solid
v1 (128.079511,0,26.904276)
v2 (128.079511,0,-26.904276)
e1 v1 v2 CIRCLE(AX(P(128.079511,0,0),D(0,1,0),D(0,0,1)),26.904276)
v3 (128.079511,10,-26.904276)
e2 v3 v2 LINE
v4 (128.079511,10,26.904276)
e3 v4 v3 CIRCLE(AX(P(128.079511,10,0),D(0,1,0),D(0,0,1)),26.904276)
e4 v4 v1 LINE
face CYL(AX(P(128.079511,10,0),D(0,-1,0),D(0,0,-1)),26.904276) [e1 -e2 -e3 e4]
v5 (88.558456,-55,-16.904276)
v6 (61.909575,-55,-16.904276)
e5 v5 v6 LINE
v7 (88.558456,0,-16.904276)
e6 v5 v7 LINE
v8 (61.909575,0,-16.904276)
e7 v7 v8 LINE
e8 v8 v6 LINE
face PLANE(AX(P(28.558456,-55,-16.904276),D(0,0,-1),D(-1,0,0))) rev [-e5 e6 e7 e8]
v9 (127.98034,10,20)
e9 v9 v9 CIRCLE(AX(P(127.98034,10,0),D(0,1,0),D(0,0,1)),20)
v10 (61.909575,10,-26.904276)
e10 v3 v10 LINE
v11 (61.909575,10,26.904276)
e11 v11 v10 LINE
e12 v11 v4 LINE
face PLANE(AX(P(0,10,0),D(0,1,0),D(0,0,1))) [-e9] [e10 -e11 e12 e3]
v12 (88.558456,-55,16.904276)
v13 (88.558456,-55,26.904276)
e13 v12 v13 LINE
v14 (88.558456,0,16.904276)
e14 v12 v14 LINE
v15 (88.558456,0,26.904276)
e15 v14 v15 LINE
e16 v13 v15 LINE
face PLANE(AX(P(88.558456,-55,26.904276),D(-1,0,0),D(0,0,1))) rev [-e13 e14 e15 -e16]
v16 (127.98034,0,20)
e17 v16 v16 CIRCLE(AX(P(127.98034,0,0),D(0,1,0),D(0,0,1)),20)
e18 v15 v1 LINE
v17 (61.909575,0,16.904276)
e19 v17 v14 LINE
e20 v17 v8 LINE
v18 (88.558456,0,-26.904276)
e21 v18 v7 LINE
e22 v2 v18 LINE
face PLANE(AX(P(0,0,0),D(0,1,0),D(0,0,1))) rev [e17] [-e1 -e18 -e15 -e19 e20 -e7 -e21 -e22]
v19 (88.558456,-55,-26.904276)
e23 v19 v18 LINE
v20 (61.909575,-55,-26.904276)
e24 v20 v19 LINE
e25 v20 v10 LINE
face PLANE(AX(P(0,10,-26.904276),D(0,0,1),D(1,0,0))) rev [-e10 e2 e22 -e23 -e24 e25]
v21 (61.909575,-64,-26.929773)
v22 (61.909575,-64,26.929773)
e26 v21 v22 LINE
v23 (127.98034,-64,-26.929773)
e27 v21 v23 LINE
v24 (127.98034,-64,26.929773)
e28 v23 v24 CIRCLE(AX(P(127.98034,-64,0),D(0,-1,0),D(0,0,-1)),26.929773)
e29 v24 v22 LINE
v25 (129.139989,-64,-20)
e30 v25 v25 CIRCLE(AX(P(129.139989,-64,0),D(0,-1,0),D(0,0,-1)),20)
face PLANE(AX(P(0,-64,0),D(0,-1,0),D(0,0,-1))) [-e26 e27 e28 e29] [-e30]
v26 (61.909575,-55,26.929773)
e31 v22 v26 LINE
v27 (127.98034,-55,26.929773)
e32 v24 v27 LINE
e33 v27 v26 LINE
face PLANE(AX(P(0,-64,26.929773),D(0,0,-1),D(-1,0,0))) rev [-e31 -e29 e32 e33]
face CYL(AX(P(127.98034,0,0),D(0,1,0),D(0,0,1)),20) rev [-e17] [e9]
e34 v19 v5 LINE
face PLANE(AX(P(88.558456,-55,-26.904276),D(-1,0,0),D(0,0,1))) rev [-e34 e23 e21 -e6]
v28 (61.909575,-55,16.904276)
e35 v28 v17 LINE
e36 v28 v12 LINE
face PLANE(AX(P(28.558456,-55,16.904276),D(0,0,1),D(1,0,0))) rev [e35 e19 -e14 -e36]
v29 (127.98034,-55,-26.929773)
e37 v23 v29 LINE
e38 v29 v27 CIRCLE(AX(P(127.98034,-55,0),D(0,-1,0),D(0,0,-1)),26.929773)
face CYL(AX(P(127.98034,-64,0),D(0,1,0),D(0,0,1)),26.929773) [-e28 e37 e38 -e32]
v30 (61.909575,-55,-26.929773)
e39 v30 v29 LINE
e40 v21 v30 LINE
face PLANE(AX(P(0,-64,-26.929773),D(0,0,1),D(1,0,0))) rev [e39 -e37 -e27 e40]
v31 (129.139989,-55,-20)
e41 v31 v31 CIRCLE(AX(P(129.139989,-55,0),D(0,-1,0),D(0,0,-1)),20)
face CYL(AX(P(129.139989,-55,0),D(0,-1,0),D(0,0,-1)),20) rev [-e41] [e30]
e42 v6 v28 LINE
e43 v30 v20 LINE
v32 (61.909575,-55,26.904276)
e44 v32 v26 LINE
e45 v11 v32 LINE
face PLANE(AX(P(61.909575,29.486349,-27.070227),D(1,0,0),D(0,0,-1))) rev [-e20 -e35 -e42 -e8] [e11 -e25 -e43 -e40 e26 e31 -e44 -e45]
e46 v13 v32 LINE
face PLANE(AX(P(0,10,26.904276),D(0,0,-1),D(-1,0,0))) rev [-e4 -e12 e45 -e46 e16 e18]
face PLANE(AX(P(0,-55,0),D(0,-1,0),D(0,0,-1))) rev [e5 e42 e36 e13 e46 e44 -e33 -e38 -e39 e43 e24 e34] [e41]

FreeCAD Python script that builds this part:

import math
import FreeCAD as App
import Part
import Sketcher

doc = App.newDocument("Part")
params = doc.addObject("Spreadsheet::Sheet", "Params")
for row, (alias, value) in enumerate([
    ("pad1_length", "10 mm"),
    ("sketch2_diameter", "40 mm"),
    ("pocket1_length", "10 mm"),
    ("sketch3_diameter", "40 mm"),
    ("pocket2_length", "10 mm"),
    ("sketch4_width", "60 mm"),
    ("sketch4_height", "10 mm"),
    ("pad2_length", "55 mm"),
    ("pad3_length", "9 mm"),
    ("sketch6_diameter", "40 mm"),
    ("pocket3_length", "9 mm"),
    ("sketch7_diameter", "40 mm"),
    ("pocket4_length", "10 mm"),
    ("pocket5_length", "54 mm"),
    ("pocket6_length", "76 mm"),
], start=1):
    params.set(f"A{row}", alias)
    params.set(f"B{row}", "=" + value)
    params.setAlias(f"B{row}", alias)

body = doc.addObject("PartDesign::Body", "Body")

# Sketch on XZ plane
sketch1 = doc.addObject("Sketcher::SketchObject", "Sketch")
body.addObject(sketch1)
sketch1.AttachmentSupport = (doc.XZ_Plane, [""])
sketch1.MapMode = "FlatFace"
sketch1.addGeometry(Part.LineSegment(App.Vector(128.079511, -26.904276, 0), App.Vector(0, -26.904276, 0)), False)
sketch1.addGeometry(Part.ArcOfCircle(Part.Circle(App.Vector(0, 0, 0), App.Vector(0, 0, 1), 26.904276), math.radians(90), math.radians(270)), False)
sketch1.addGeometry(Part.LineSegment(App.Vector(0, 26.904276, 0), App.Vector(128.079511, 26.904276, 0)), False)
sketch1.addGeometry(Part.ArcOfCircle(Part.Circle(App.Vector(128.079511, 0, 0), App.Vector(0, 0, 1), 26.904276), math.radians(-90), math.radians(90)), False)
sketch1.addConstraint(Sketcher.Constraint("Tangent", 0, 2, 1, 2))
sketch1.addConstraint(Sketcher.Constraint("Tangent", 1, 1, 2, 1))
sketch1.addConstraint(Sketcher.Constraint("Tangent", 2, 2, 3, 2))
sketch1.addConstraint(Sketcher.Constraint("Tangent", 3, 1, 0, 1))
sketch1.addConstraint(Sketcher.Constraint("Horizontal", 0))
sketch1.addConstraint(Sketcher.Constraint("Horizontal", 2))
sketch1.addConstraint(Sketcher.Constraint("Coincident", 1, 3, -1, 1))
sketch1.addConstraint(Sketcher.Constraint("Radius", 1, 26.904276))
sketch1.addConstraint(Sketcher.Constraint("DistanceX", 0, 2, 0, 1, 128.079511))
pad1 = doc.addObject("PartDesign::Pad", "Pad")
body.addObject(pad1)
pad1.Profile = sketch1
pad1.setExpression("Length", "Params.pad1_length")
pad1.Reversed = True

# Sketch on XZ plane
sketch2 = doc.addObject("Sketcher::SketchObject", "Sketch001")
body.addObject(sketch2)
sketch2.AttachmentSupport = (doc.XZ_Plane, [""])
sketch2.MapMode = "FlatFace"
sketch2.addGeometry(Part.Circle(App.Vector(0, 0, 0), App.Vector(0, 0, 1), 20), False)
sketch2.addConstraint(Sketcher.Constraint("Coincident", 0, 3, -1, 1))
sketch2.addConstraint(Sketcher.Constraint("Diameter", 0, 40.0))
sketch2.setExpression("Constraints[1]", "Params.sketch2_diameter")
pocket1 = doc.addObject("PartDesign::Pocket", "Pocket")
body.addObject(pocket1)
pocket1.Profile = sketch2
pocket1.setExpression("Length", "Params.pocket1_length")

# Sketch on XZ plane
sketch3 = doc.addObject("Sketcher::SketchObject", "Sketch002")
body.addObject(sketch3)
sketch3.AttachmentSupport = (doc.XZ_Plane, [""])
sketch3.MapMode = "FlatFace"
sketch3.AttachmentOffset = App.Placement(App.Vector(0, 0, -10), App.Rotation())
sketch3.addGeometry(Part.Circle(App.Vector(127.98034, 0, 0), App.Vector(0, 0, 1), 20), False)
sketch3.addConstraint(Sketcher.Constraint("PointOnObject", 0, 3, -1))
sketch3.addConstraint(Sketcher.Constraint("Diameter", 0, 40.0))
sketch3.addConstraint(Sketcher.Constraint("DistanceX", -1, 1, 0, 3, 127.98034))
sketch3.setExpression("Constraints[1]", "Params.sketch3_diameter")
pocket2 = doc.addObject("PartDesign::Pocket", "Pocket001")
body.addObject(pocket2)
pocket2.Profile = sketch3
pocket2.setExpression("Length", "Params.pocket2_length")
pocket2.Reversed = True

# Sketch on XZ plane
sketch4 = doc.addObject("Sketcher::SketchObject", "Sketch003")
body.addObject(sketch4)
sketch4.AttachmentSupport = (doc.XZ_Plane, [""])
sketch4.MapMode = "FlatFace"
sketch4.addGeometry(Part.LineSegment(App.Vector(88.558456, 16.904276, 0), App.Vector(88.558456, 26.904276, 0)), False)
sketch4.addGeometry(Part.LineSegment(App.Vector(88.558456, 26.904276, 0), App.Vector(28.558456, 26.904276, 0)), False)
sketch4.addGeometry(Part.LineSegment(App.Vector(28.558456, 26.904276, 0), App.Vector(28.558456, 16.904276, 0)), False)
sketch4.addGeometry(Part.LineSegment(App.Vector(28.558456, 16.904276, 0), App.Vector(88.558456, 16.904276, 0)), False)
sketch4.addGeometry(Part.LineSegment(App.Vector(88.558456, -26.904276, 0), App.Vector(88.558456, -16.904276, 0)), False)
sketch4.addGeometry(Part.LineSegment(App.Vector(88.558456, -16.904276, 0), App.Vector(28.558456, -16.904276, 0)), False)
sketch4.addGeometry(Part.LineSegment(App.Vector(28.558456, -16.904276, 0), App.Vector(28.558456, -26.904276, 0)), False)
sketch4.addGeometry(Part.LineSegment(App.Vector(28.558456, -26.904276, 0), App.Vector(88.558456, -26.904276, 0)), False)
sketch4.addConstraint(Sketcher.Constraint("Coincident", 0, 2, 1, 1))
sketch4.addConstraint(Sketcher.Constraint("Coincident", 1, 2, 2, 1))
sketch4.addConstraint(Sketcher.Constraint("Coincident", 2, 2, 3, 1))
sketch4.addConstraint(Sketcher.Constraint("Coincident", 3, 2, 0, 1))
sketch4.addConstraint(Sketcher.Constraint("Coincident", 4, 2, 5, 1))
sketch4.addConstraint(Sketcher.Constraint("Coincident", 5, 2, 6, 1))
sketch4.addConstraint(Sketcher.Constraint("Coincident", 6, 2, 7, 1))
sketch4.addConstraint(Sketcher.Constraint("Coincident", 7, 2, 4, 1))
sketch4.addConstraint(Sketcher.Constraint("Vertical", 0))
sketch4.addConstraint(Sketcher.Constraint("Horizontal", 1))
sketch4.addConstraint(Sketcher.Constraint("Vertical", 2))
sketch4.addConstraint(Sketcher.Constraint("Horizontal", 3))
sketch4.addConstraint(Sketcher.Constraint("Vertical", 4))
sketch4.addConstraint(Sketcher.Constraint("Horizontal", 5))
sketch4.addConstraint(Sketcher.Constraint("Vertical", 6))
sketch4.addConstraint(Sketcher.Constraint("Horizontal", 7))
sketch4.addConstraint(Sketcher.Constraint("Symmetric", 3, 2, 4, 2, -1))
sketch4.addConstraint(Sketcher.Constraint("Symmetric", 1, 2, 6, 2, -1))
sketch4.addConstraint(Sketcher.Constraint("DistanceX", 1, 2, 1, 1, 60.0))
sketch4.addConstraint(Sketcher.Constraint("DistanceY", 0, 1, 0, 2, 10.0))
sketch4.addConstraint(Sketcher.Constraint("DistanceX", -1, 1, 0, 2, 88.558456))
sketch4.addConstraint(Sketcher.Constraint("DistanceY", -1, 1, 0, 2, 26.904276))
sketch4.setExpression("Constraints[18]", "Params.sketch4_width")
sketch4.setExpression("Constraints[19]", "Params.sketch4_height")
pad2 = doc.addObject("PartDesign::Pad", "Pad001")
body.addObject(pad2)
pad2.Profile = sketch4
pad2.setExpression("Length", "Params.pad2_length")

# Sketch on XZ plane
sketch5 = doc.addObject("Sketcher::SketchObject", "Sketch004")
body.addObject(sketch5)
sketch5.AttachmentSupport = (doc.XZ_Plane, [""])
sketch5.MapMode = "FlatFace"
sketch5.AttachmentOffset = App.Placement(App.Vector(0, 0, 55), App.Rotation())
sketch5.addGeometry(Part.LineSegment(App.Vector(127.98034, 26.929773, 0), App.Vector(0, 26.929773, 0)), False)
sketch5.addGeometry(Part.ArcOfCircle(Part.Circle(App.Vector(0, 0, 0), App.Vector(0, 0, 1), 26.929773), math.radians(90), math.radians(270)), False)
sketch5.addGeometry(Part.LineSegment(App.Vector(0, -26.929773, 0), App.Vector(127.98034, -26.929773, 0)), False)
sketch5.addGeometry(Part.ArcOfCircle(Part.Circle(App.Vector(127.98034, 0, 0), App.Vector(0, 0, 1), 26.929773), math.radians(-90), math.radians(90)), False)
sketch5.addConstraint(Sketcher.Constraint("Tangent", 0, 2, 1, 1))
sketch5.addConstraint(Sketcher.Constraint("Tangent", 1, 2, 2, 1))
sketch5.addConstraint(Sketcher.Constraint("Tangent", 2, 2, 3, 1))
sketch5.addConstraint(Sketcher.Constraint("Tangent", 3, 2, 0, 1))
sketch5.addConstraint(Sketcher.Constraint("Horizontal", 0))
sketch5.addConstraint(Sketcher.Constraint("Horizontal", 2))
sketch5.addConstraint(Sketcher.Constraint("Coincident", 1, 3, -1, 1))
sketch5.addConstraint(Sketcher.Constraint("Radius", 1, 26.929773))
sketch5.addConstraint(Sketcher.Constraint("DistanceX", 0, 2, 0, 1, 127.98034))
pad3 = doc.addObject("PartDesign::Pad", "Pad002")
body.addObject(pad3)
pad3.Profile = sketch5
pad3.setExpression("Length", "Params.pad3_length")

# Sketch on XZ plane
sketch6 = doc.addObject("Sketcher::SketchObject", "Sketch005")
body.addObject(sketch6)
sketch6.AttachmentSupport = (doc.XZ_Plane, [""])
sketch6.MapMode = "FlatFace"
sketch6.AttachmentOffset = App.Placement(App.Vector(0, 0, 64), App.Rotation())
sketch6.addGeometry(Part.Circle(App.Vector(129.139989, 0, 0), App.Vector(0, 0, 1), 20), False)
sketch6.addConstraint(Sketcher.Constraint("PointOnObject", 0, 3, -1))
sketch6.addConstraint(Sketcher.Constraint("Diameter", 0, 40.0))
sketch6.addConstraint(Sketcher.Constraint("DistanceX", -1, 1, 0, 3, 129.139989))
sketch6.setExpression("Constraints[1]", "Params.sketch6_diameter")
pocket3 = doc.addObject("PartDesign::Pocket", "Pocket002")
body.addObject(pocket3)
pocket3.Profile = sketch6
pocket3.setExpression("Length", "Params.pocket3_length")

# Sketch on XZ plane
sketch7 = doc.addObject("Sketcher::SketchObject", "Sketch006")
body.addObject(sketch7)
sketch7.AttachmentSupport = (doc.XZ_Plane, [""])
sketch7.MapMode = "FlatFace"
sketch7.AttachmentOffset = App.Placement(App.Vector(0, 0, 64), App.Rotation())
sketch7.addGeometry(Part.Circle(App.Vector(0, 0, 0), App.Vector(0, 0, 1), 20), False)
sketch7.addConstraint(Sketcher.Constraint("Coincident", 0, 3, -1, 1))
sketch7.addConstraint(Sketcher.Constraint("Diameter", 0, 40.0))
sketch7.setExpression("Constraints[1]", "Params.sketch7_diameter")
pocket4 = doc.addObject("PartDesign::Pocket", "Pocket003")
body.addObject(pocket4)
pocket4.Profile = sketch7
pocket4.setExpression("Length", "Params.pocket4_length")

# Sketch on XY plane
sketch8 = doc.addObject("Sketcher::SketchObject", "Sketch007")
body.addObject(sketch8)
sketch8.AttachmentSupport = (doc.XY_Plane, [""])
sketch8.MapMode = "FlatFace"
sketch8.AttachmentOffset = App.Placement(App.Vector(0, 0, 26.929773), App.Rotation())
sketch8.addGeometry(Part.LineSegment(App.Vector(-32.543332, 29.486349, 0), App.Vector(-32.543332, -74.567151, 0)), False)
sketch8.addGeometry(Part.LineSegment(App.Vector(-32.543332, -74.567151, 0), App.Vector(61.909575, -74.567151, 0)), False)
sketch8.addGeometry(Part.LineSegment(App.Vector(61.909575, -74.567151, 0), App.Vector(61.909575, 29.486349, 0)), False)
sketch8.addGeometry(Part.LineSegment(App.Vector(61.909575, 29.486349, 0), App.Vector(-32.543332, 29.486349, 0)), False)
sketch8.addConstraint(Sketcher.Constraint("Coincident", 0, 2, 1, 1))
sketch8.addConstraint(Sketcher.Constraint("Coincident", 1, 2, 2, 1))
sketch8.addConstraint(Sketcher.Constraint("Coincident", 2, 2, 3, 1))
sketch8.addConstraint(Sketcher.Constraint("Coincident", 3, 2, 0, 1))
sketch8.addConstraint(Sketcher.Constraint("Vertical", 0))
sketch8.addConstraint(Sketcher.Constraint("Horizontal", 1))
sketch8.addConstraint(Sketcher.Constraint("Vertical", 2))
sketch8.addConstraint(Sketcher.Constraint("Horizontal", 3))
sketch8.addConstraint(Sketcher.Constraint("DistanceY", 0, 2, 0, 1, 104.0535))
sketch8.addConstraint(Sketcher.Constraint("DistanceX", 1, 1, 1, 2, 94.452906))
sketch8.addConstraint(Sketcher.Constraint("DistanceX", 0, 2, -1, 1, 32.543332))
sketch8.addConstraint(Sketcher.Constraint("DistanceY", 0, 2, -1, 1, 74.567151))
pocket5 = doc.addObject("PartDesign::Pocket", "Pocket004")
body.addObject(pocket5)
pocket5.Profile = sketch8
pocket5.setExpression("Length", "Params.pocket5_length")

# Sketch on XZ plane
sketch9 = doc.addObject("Sketcher::SketchObject", "Sketch008")
body.addObject(sketch9)
sketch9.AttachmentSupport = (doc.XZ_Plane, [""])
sketch9.MapMode = "FlatFace"
sketch9.AttachmentOffset = App.Placement(App.Vector(0, 0, -10), App.Rotation())
sketch9.addGeometry(Part.LineSegment(App.Vector(-14.697473, 26.705022, 0), App.Vector(-14.697473, 36.61584, 0)), False)
sketch9.addGeometry(Part.LineSegment(App.Vector(-14.697473, 36.61584, 0), App.Vector(61.909575, 36.61584, 0)), False)
sketch9.addGeometry(Part.LineSegment(App.Vector(61.909575, 36.61584, 0), App.Vector(61.909575, 26.705022, 0)), False)
sketch9.addGeometry(Part.LineSegment(App.Vector(61.909575, 26.705022, 0), App.Vector(-14.697473, 26.705022, 0)), False)
sketch9.addConstraint(Sketcher.Constraint("Coincident", 0, 2, 1, 1))
sketch9.addConstraint(Sketcher.Constraint("Coincident", 1, 2, 2, 1))
sketch9.addConstraint(Sketcher.Constraint("Coincident", 2, 2, 3, 1))
sketch9.addConstraint(Sketcher.Constraint("Coincident", 3, 2, 0, 1))
sketch9.addConstraint(Sketcher.Constraint("Vertical", 0))
sketch9.addConstraint(Sketcher.Constraint("Horizontal", 1))
sketch9.addConstraint(Sketcher.Constraint("Vertical", 2))
sketch9.addConstraint(Sketcher.Constraint("Horizontal", 3))
sketch9.addConstraint(Sketcher.Constraint("DistanceY", 0, 1, 0, 2, 9.910819))
sketch9.addConstraint(Sketcher.Constraint("DistanceX", 1, 1, 1, 2, 76.607047))
sketch9.addConstraint(Sketcher.Constraint("DistanceY", -1, 1, 0, 2, 36.61584))
sketch9.addConstraint(Sketcher.Constraint("DistanceX", 0, 2, -1, 1, 14.697473))
pocket6 = doc.addObject("PartDesign::Pocket", "Pocket005")
body.addObject(pocket6)
pocket6.Profile = sketch9
pocket6.setExpression("Length", "Params.pocket6_length")
pocket6.Reversed = True

doc.recompute()
